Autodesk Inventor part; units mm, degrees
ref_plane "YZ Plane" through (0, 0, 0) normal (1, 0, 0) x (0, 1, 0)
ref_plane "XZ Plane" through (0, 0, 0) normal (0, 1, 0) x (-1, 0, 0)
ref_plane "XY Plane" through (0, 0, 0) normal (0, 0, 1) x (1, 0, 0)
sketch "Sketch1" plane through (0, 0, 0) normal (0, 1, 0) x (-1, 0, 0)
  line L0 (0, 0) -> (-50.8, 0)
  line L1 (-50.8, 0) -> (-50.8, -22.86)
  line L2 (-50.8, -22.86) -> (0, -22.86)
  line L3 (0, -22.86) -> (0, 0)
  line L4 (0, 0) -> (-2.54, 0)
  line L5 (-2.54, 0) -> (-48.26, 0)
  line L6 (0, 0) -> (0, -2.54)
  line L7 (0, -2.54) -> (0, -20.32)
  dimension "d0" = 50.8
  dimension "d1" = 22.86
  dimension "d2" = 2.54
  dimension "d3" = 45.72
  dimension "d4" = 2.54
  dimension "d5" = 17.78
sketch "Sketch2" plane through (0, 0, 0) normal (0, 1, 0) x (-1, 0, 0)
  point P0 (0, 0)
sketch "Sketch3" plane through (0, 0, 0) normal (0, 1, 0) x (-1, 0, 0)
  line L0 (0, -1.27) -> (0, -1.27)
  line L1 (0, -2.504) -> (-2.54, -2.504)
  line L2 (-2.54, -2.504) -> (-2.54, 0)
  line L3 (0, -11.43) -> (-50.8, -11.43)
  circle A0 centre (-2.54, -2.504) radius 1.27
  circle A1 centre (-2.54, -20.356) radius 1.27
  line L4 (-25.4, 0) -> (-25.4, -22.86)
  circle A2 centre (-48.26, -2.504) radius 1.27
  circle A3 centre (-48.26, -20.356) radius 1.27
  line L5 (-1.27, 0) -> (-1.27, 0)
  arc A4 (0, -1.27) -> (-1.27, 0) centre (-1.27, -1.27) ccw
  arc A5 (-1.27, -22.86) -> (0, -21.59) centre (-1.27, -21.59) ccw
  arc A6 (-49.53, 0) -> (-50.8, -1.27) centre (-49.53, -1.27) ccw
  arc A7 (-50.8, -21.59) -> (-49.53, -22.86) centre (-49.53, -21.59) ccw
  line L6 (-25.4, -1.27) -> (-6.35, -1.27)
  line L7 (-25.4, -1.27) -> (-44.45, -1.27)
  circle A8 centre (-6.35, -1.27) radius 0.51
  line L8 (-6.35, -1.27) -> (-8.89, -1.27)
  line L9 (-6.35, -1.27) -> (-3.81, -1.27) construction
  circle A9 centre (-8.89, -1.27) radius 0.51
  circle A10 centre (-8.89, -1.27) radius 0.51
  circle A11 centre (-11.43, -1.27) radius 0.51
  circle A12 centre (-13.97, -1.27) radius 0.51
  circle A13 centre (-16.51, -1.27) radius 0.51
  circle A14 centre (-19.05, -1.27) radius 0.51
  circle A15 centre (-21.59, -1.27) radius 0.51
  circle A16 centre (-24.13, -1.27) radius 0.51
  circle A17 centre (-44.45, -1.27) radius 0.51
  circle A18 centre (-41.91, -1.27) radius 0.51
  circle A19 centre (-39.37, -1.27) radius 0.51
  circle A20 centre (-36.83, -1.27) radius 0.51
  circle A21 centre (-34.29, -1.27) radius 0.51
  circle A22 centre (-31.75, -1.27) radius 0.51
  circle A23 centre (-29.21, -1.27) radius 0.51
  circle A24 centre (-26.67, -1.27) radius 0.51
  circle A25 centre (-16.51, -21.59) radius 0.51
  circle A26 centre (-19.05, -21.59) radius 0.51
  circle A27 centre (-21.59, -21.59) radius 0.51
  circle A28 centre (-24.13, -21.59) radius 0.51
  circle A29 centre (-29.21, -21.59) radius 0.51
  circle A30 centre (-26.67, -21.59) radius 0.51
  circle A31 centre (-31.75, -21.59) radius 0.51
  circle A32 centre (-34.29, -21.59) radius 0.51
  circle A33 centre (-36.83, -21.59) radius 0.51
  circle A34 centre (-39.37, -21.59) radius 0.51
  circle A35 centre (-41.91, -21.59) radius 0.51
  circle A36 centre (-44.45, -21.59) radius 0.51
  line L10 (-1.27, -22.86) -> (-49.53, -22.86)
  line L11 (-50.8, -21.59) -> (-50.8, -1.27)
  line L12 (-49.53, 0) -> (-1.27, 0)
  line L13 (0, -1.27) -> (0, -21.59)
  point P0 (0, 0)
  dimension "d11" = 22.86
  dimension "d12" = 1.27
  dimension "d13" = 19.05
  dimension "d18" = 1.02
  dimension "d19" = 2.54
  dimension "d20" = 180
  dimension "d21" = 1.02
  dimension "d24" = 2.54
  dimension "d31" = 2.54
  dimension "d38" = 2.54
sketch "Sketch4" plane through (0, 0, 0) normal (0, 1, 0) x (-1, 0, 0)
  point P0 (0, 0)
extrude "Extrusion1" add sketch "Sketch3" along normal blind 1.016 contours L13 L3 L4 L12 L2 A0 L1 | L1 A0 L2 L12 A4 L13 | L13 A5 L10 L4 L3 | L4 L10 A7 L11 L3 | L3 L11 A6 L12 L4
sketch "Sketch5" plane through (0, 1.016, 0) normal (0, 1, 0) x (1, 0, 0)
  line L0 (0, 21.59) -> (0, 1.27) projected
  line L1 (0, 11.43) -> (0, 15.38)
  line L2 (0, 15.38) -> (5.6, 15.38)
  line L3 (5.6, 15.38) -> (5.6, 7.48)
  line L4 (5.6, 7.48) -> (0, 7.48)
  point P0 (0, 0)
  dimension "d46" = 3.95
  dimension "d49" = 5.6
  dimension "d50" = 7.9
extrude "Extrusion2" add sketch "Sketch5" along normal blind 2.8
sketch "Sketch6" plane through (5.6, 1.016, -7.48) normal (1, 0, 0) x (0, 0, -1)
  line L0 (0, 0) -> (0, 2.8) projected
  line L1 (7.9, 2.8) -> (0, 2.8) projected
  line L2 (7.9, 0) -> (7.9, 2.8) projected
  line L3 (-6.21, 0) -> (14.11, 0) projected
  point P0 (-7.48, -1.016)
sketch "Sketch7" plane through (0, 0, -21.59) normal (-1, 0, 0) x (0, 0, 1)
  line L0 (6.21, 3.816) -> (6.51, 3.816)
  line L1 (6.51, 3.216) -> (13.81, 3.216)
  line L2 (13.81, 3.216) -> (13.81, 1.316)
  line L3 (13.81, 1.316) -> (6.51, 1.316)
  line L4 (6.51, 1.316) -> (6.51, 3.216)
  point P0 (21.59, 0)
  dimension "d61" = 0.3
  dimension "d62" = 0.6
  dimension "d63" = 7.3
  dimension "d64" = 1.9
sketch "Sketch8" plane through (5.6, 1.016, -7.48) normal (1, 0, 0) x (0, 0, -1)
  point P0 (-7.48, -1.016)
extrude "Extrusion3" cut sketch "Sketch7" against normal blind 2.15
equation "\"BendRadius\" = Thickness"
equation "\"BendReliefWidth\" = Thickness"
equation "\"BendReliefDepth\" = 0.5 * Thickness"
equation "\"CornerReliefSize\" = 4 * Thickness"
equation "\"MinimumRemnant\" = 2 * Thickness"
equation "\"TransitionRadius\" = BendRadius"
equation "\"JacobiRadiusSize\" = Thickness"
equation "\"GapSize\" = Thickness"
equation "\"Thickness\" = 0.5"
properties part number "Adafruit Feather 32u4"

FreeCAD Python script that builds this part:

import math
import FreeCAD as App
import Part
import Sketcher

V = App.Vector
Q = App.Units.Quantity

doc = App.newDocument("Part")
params = doc.addObject("Spreadsheet::Sheet", "Params")
for row, (alias, value) in enumerate([
    ("sketch1_diameter", "0.1 in"),
    ("sketch1_width", "1.9 in"),
    ("pad1_length", "0.04 in"),
    ("pad2_length", "2.8 mm"),
    ("pocket1_length", "2.15 mm"),
], start=1):
    params.set(f"A{row}", alias)
    params.set(f"B{row}", "=" + value)
    params.setAlias(f"B{row}", alias)

body = doc.addObject("PartDesign::Body", "Body")

sketch1 = body.newObject("Sketcher::SketchObject", "Sketch")
sketch1.AttachmentSupport = (doc.getObject("XZ_Plane"), [""])
sketch1.MapMode = "FlatFace"
sketch1.addGeometry([
    Part.ArcOfCircle(Part.Circle(V(1.27, -1.27, 0), V(0, 0, 1), 1.27), math.radians(90), math.radians(180)),
    Part.LineSegment(V(1.27, 0, 0), V(49.53, 0, 0)),
    Part.ArcOfCircle(Part.Circle(V(49.53, -1.27, 0), V(0, 0, 1), 1.27), math.radians(0), math.radians(90)),
    Part.LineSegment(V(50.8, -1.27, 0), V(50.8, -21.59, 0)),
    Part.ArcOfCircle(Part.Circle(V(49.53, -21.59, 0), V(0, 0, 1), 1.27), math.radians(-90), math.radians(0)),
    Part.LineSegment(V(49.53, -22.86, 0), V(1.27, -22.86, 0)),
    Part.ArcOfCircle(Part.Circle(V(1.27, -21.59, 0), V(0, 0, 1), 1.27), math.radians(180), math.radians(270)),
    Part.LineSegment(V(0, -21.59, 0), V(0, -1.27, 0)),
    Part.Circle(V(2.54, -2.504, 0), V(0, 0, 1), 1.27),
    Part.ArcOfCircle(Part.Circle(V(24.13, -1.27, 0), V(0, 0, 1), 0.51), math.radians(180), math.radians(360)),
    Part.ArcOfCircle(Part.Circle(V(24.13, -1.27, 0), V(0, 0, 1), 0.51), math.radians(0), math.radians(180)),
    Part.ArcOfCircle(Part.Circle(V(21.59, -1.27, 0), V(0, 0, 1), 0.51), math.radians(180), math.radians(360)),
    Part.ArcOfCircle(Part.Circle(V(21.59, -1.27, 0), V(0, 0, 1), 0.51), math.radians(0), math.radians(180)),
    Part.ArcOfCircle(Part.Circle(V(19.05, -1.27, 0), V(0, 0, 1), 0.51), math.radians(180), math.radians(360)),
    Part.ArcOfCircle(Part.Circle(V(19.05, -1.27, 0), V(0, 0, 1), 0.51), math.radians(0), math.radians(180)),
    Part.ArcOfCircle(Part.Circle(V(16.51, -1.27, 0), V(0, 0, 1), 0.51), math.radians(180), math.radians(360)),
    Part.ArcOfCircle(Part.Circle(V(16.51, -1.27, 0), V(0, 0, 1), 0.51), math.radians(0), math.radians(180)),
    Part.ArcOfCircle(Part.Circle(V(13.97, -1.27, 0), V(0, 0, 1), 0.51), math.radians(180), math.radians(360)),
    Part.ArcOfCircle(Part.Circle(V(13.97, -1.27, 0), V(0, 0, 1), 0.51), math.radians(0), math.radians(180)),
    Part.ArcOfCircle(Part.Circle(V(11.43, -1.27, 0), V(0, 0, 1), 0.51), math.radians(180), math.radians(360)),
    Part.ArcOfCircle(Part.Circle(V(11.43, -1.27, 0), V(0, 0, 1), 0.51), math.radians(0), math.radians(180)),
    Part.ArcOfCircle(Part.Circle(V(8.89, -1.27, 0), V(0, 0, 1), 0.51), math.radians(180), math.radians(360)),
    Part.ArcOfCircle(Part.Circle(V(8.89, -1.27, 0), V(0, 0, 1), 0.51), math.radians(0), math.radians(180)),
    Part.Circle(V(6.35, -1.27, 0), V(0, 0, 1), 0.51),
    Part.Circle(V(2.54, -20.356, 0), V(0, 0, 1), 1.27),
    Part.Circle(V(24.13, -21.59, 0), V(0, 0, 1), 0.51),
    Part.Circle(V(21.59, -21.59, 0), V(0, 0, 1), 0.51),
    Part.Circle(V(19.05, -21.59, 0), V(0, 0, 1), 0.51),
    Part.Circle(V(16.51, -21.59, 0), V(0, 0, 1), 0.51),
    Part.Circle(V(48.26, -2.504, 0), V(0, 0, 1), 1.27),
    Part.Circle(V(44.45, -1.27, 0), V(0, 0, 1), 0.51),
    Part.ArcOfCircle(Part.Circle(V(41.91, -1.27, 0), V(0, 0, 1), 0.51), math.radians(0), math.radians(180)),
    Part.ArcOfCircle(Part.Circle(V(41.91, -1.27, 0), V(0, 0, 1), 0.51), math.radians(180), math.radians(360)),
    Part.ArcOfCircle(Part.Circle(V(39.37, -1.27, 0), V(0, 0, 1), 0.51), math.radians(0), math.radians(180)),
    Part.ArcOfCircle(Part.Circle(V(39.37, -1.27, 0), V(0, 0, 1), 0.51), math.radians(180), math.radians(360)),
    Part.ArcOfCircle(Part.Circle(V(36.83, -1.27, 0), V(0, 0, 1), 0.51), math.radians(0), math.radians(180)),
    Part.ArcOfCircle(Part.Circle(V(36.83, -1.27, 0), V(0, 0, 1), 0.51), math.radians(180), math.radians(360)),
    Part.ArcOfCircle(Part.Circle(V(34.29, -1.27, 0), V(0, 0, 1), 0.51), math.radians(0), math.radians(180)),
    Part.ArcOfCircle(Part.Circle(V(34.29, -1.27, 0), V(0, 0, 1), 0.51), math.radians(180), math.radians(360)),
    Part.ArcOfCircle(Part.Circle(V(31.75, -1.27, 0), V(0, 0, 1), 0.51), math.radians(0), math.radians(180)),
    Part.ArcOfCircle(Part.Circle(V(31.75, -1.27, 0), V(0, 0, 1), 0.51), math.radians(180), math.radians(360)),
    Part.ArcOfCircle(Part.Circle(V(29.21, -1.27, 0), V(0, 0, 1), 0.51), math.radians(0), math.radians(180)),
    Part.ArcOfCircle(Part.Circle(V(29.21, -1.27, 0), V(0, 0, 1), 0.51), math.radians(180), math.radians(360)),
    Part.ArcOfCircle(Part.Circle(V(26.67, -1.27, 0), V(0, 0, 1), 0.51), math.radians(0), math.radians(180)),
    Part.ArcOfCircle(Part.Circle(V(26.67, -1.27, 0), V(0, 0, 1), 0.51), math.radians(180), math.radians(360)),
    Part.Circle(V(26.67, -21.59, 0), V(0, 0, 1), 0.51),
    Part.Circle(V(29.21, -21.59, 0), V(0, 0, 1), 0.51),
    Part.Circle(V(44.45, -21.59, 0), V(0, 0, 1), 0.51),
    Part.Circle(V(48.26, -20.356, 0), V(0, 0, 1), 1.27),
    Part.Circle(V(41.91, -21.59, 0), V(0, 0, 1), 0.51),
    Part.Circle(V(39.37, -21.59, 0), V(0, 0, 1), 0.51),
    Part.Circle(V(36.83, -21.59, 0), V(0, 0, 1), 0.51),
    Part.Circle(V(34.29, -21.59, 0), V(0, 0, 1), 0.51),
    Part.Circle(V(31.75, -21.59, 0), V(0, 0, 1), 0.51),
], False)
sketch1.addConstraint([
    Sketcher.Constraint("Tangent", 0, 1, 1, 1),
    Sketcher.Constraint("Tangent", 1, 2, 2, 2),
    Sketcher.Constraint("Tangent", 2, 1, 3, 1),
    Sketcher.Constraint("Tangent", 3, 2, 4, 2),
    Sketcher.Constraint("Tangent", 4, 1, 5, 1),
    Sketcher.Constraint("Tangent", 5, 2, 6, 2),
    Sketcher.Constraint("Tangent", 6, 1, 7, 1),
    Sketcher.Constraint("Tangent", 7, 2, 0, 2),
    Sketcher.Constraint("Tangent", 9, 1, 10, 2),
    Sketcher.Constraint("Coincident", 10, 1, 9, 2),
    Sketcher.Constraint("Tangent", 11, 1, 12, 2),
    Sketcher.Constraint("Coincident", 12, 1, 11, 2),
    Sketcher.Constraint("Tangent", 13, 1, 14, 2),
    Sketcher.Constraint("Coincident", 14, 1, 13, 2),
    Sketcher.Constraint("Tangent", 15, 1, 16, 2),
    Sketcher.Constraint("Coincident", 16, 1, 15, 2),
    Sketcher.Constraint("Tangent", 17, 1, 18, 2),
    Sketcher.Constraint("Coincident", 18, 1, 17, 2),
    Sketcher.Constraint("Tangent", 19, 1, 20, 2),
    Sketcher.Constraint("Coincident", 20, 1, 19, 2),
    Sketcher.Constraint("Tangent", 21, 1, 22, 2),
    Sketcher.Constraint("Coincident", 22, 1, 21, 2),
    Sketcher.Constraint("Tangent", 31, 1, 32, 2),
    Sketcher.Constraint("Coincident", 32, 1, 31, 2),
    Sketcher.Constraint("Tangent", 33, 1, 34, 2),
    Sketcher.Constraint("Coincident", 34, 1, 33, 2),
    Sketcher.Constraint("Tangent", 35, 1, 36, 2),
    Sketcher.Constraint("Coincident", 36, 1, 35, 2),
    Sketcher.Constraint("Tangent", 37, 1, 38, 2),
    Sketcher.Constraint("Coincident", 38, 1, 37, 2),
    Sketcher.Constraint("Tangent", 39, 1, 40, 2),
    Sketcher.Constraint("Coincident", 40, 1, 39, 2),
    Sketcher.Constraint("Tangent", 41, 1, 42, 2),
    Sketcher.Constraint("Coincident", 42, 1, 41, 2),
    Sketcher.Constraint("Tangent", 43, 1, 44, 2),
    Sketcher.Constraint("Coincident", 44, 1, 43, 2),
    Sketcher.Constraint("Horizontal", 1),
    Sketcher.Constraint("Vertical", 3),
    Sketcher.Constraint("Horizontal", 5),
    Sketcher.Constraint("Vertical", 7),
    Sketcher.Constraint("Equal", 0, 2),
    Sketcher.Constraint("Equal", 2, 4),
    Sketcher.Constraint("Equal", 4, 6),
    Sketcher.Constraint("Equal", 6, 8),
    Sketcher.Constraint("Equal", 10, 11),
    Sketcher.Constraint("Equal", 12, 13),
    Sketcher.Constraint("Equal", 14, 15),
    Sketcher.Constraint("Equal", 16, 17),
    Sketcher.Constraint("Equal", 18, 19),
    Sketcher.Constraint("Equal", 20, 21),
    Sketcher.Constraint("Equal", 22, 23),
    Sketcher.Constraint("Equal", 8, 24),
    Sketcher.Constraint("Equal", 23, 25),
    Sketcher.Constraint("Equal", 25, 26),
    Sketcher.Constraint("Equal", 26, 27),
    Sketcher.Constraint("Equal", 27, 28),
    Sketcher.Constraint("Equal", 24, 29),
    Sketcher.Constraint("Equal", 28, 30),
    Sketcher.Constraint("Equal", 30, 31),
    Sketcher.Constraint("Equal", 32, 33),
    Sketcher.Constraint("Equal", 34, 35),
    Sketcher.Constraint("Equal", 36, 37),
    Sketcher.Constraint("Equal", 38, 39),
    Sketcher.Constraint("Equal", 40, 41),
    Sketcher.Constraint("Equal", 42, 43),
    Sketcher.Constraint("Equal", 44, 45),
    Sketcher.Constraint("Equal", 45, 46),
    Sketcher.Constraint("Equal", 46, 47),
    Sketcher.Constraint("Equal", 29, 48),
    Sketcher.Constraint("Equal", 47, 49),
    Sketcher.Constraint("Equal", 49, 50),
    Sketcher.Constraint("Equal", 50, 51),
    Sketcher.Constraint("Equal", 51, 52),
    Sketcher.Constraint("Equal", 52, 53),
    Sketcher.Constraint("PointOnObject", 0, 1, -1),
    Sketcher.Constraint("PointOnObject", 6, 1, -2),
    Sketcher.Constraint("Horizontal", 2, 3, 9, 3),
    Sketcher.Constraint("Horizontal", 10, 3, 11, 3),
    Sketcher.Constraint("Horizontal", 12, 3, 13, 3),
    Sketcher.Constraint("Horizontal", 14, 3, 15, 3),
    Sketcher.Constraint("Horizontal", 16, 3, 17, 3),
    Sketcher.Constraint("Horizontal", 18, 3, 19, 3),
    Sketcher.Constraint("Horizontal", 20, 3, 21, 3),
    Sketcher.Constraint("Horizontal", 22, 3, 23, 3),
    Sketcher.Constraint("Horizontal", 6, 3, 25, 3),
    Sketcher.Constraint("Horizontal", 25, 3, 26, 3),
    Sketcher.Constraint("Horizontal", 26, 3, 27, 3),
    Sketcher.Constraint("Horizontal", 27, 3, 28, 3),
    Sketcher.Constraint("Horizontal", 8, 3, 29, 3),
    Sketcher.Constraint("Horizontal", 23, 3, 30, 3),
    Sketcher.Constraint("Horizontal", 30, 3, 31, 3),
    Sketcher.Constraint("Horizontal", 32, 3, 33, 3),
    Sketcher.Constraint("Horizontal", 34, 3, 35, 3),
    Sketcher.Constraint("Horizontal", 36, 3, 37, 3),
    Sketcher.Constraint("Horizontal", 38, 3, 39, 3),
    Sketcher.Constraint("Horizontal", 40, 3, 41, 3),
    Sketcher.Constraint("Horizontal", 42, 3, 43, 3),
    Sketcher.Constraint("Horizontal", 28, 3, 45, 3),
    Sketcher.Constraint("Horizontal", 45, 3, 46, 3),
    Sketcher.Constraint("Horizontal", 46, 3, 47, 3),
    Sketcher.Constraint("Horizontal", 24, 3, 48, 3),
    Sketcher.Constraint("Horizontal", 47, 3, 49, 3),
    Sketcher.Constraint("Horizontal", 49, 3, 50, 3),
    Sketcher.Constraint("Horizontal", 50, 3, 51, 3),
    Sketcher.Constraint("Horizontal", 51, 3, 52, 3),
    Sketcher.Constraint("Horizontal", 52, 3, 53, 3),
    Sketcher.Constraint("Horizontal", 7, 2, 9, 1),
    Sketcher.Constraint("Horizontal", 9, 1, 10, 1),
    Sketcher.Constraint("Horizontal", 10, 1, 11, 1),
    Sketcher.Constraint("Horizontal", 11, 1, 12, 1),
    Sketcher.Constraint("Horizontal", 12, 1, 13, 1),
    Sketcher.Constraint("Horizontal", 13, 1, 14, 1),
    Sketcher.Constraint("Horizontal", 14, 1, 15, 1),
    Sketcher.Constraint("Horizontal", 15, 1, 16, 1),
    Sketcher.Constraint("Horizontal", 16, 1, 17, 1),
    Sketcher.Constraint("Horizontal", 17, 1, 18, 1),
    Sketcher.Constraint("Horizontal", 18, 1, 19, 1),
    Sketcher.Constraint("Horizontal", 19, 1, 20, 1),
    Sketcher.Constraint("Horizontal", 20, 1, 21, 1),
    Sketcher.Constraint("Horizontal", 21, 1, 22, 1),
    Sketcher.Constraint("Horizontal", 22, 1, 31, 1),
    Sketcher.Constraint("Horizontal", 31, 1, 32, 1),
    Sketcher.Constraint("Horizontal", 32, 1, 33, 1),
    Sketcher.Constraint("Horizontal", 33, 1, 34, 1),
    Sketcher.Constraint("Horizontal", 34, 1, 35, 1),
    Sketcher.Constraint("Horizontal", 35, 1, 36, 1),
    Sketcher.Constraint("Horizontal", 36, 1, 37, 1),
    Sketcher.Constraint("Horizontal", 37, 1, 38, 1),
    Sketcher.Constraint("Horizontal", 38, 1, 39, 1),
    Sketcher.Constraint("Horizontal", 39, 1, 40, 1),
    Sketcher.Constraint("Horizontal", 40, 1, 41, 1),
    Sketcher.Constraint("Horizontal", 41, 1, 42, 1),
    Sketcher.Constraint("Horizontal", 42, 1, 43, 1),
    Sketcher.Constraint("Horizontal", 43, 1, 44, 1),
    Sketcher.Constraint("Vertical", 8, 3, 24, 3),
    Sketcher.Constraint("Vertical", 10, 3, 25, 3),
    Sketcher.Constraint("Vertical", 12, 3, 26, 3),
    Sketcher.Constraint("Vertical", 14, 3, 27, 3),
    Sketcher.Constraint("Vertical", 16, 3, 28, 3),
    Sketcher.Constraint("Vertical", 44, 3, 45, 3),
    Sketcher.Constraint("Vertical", 42, 3, 46, 3),
    Sketcher.Constraint("Vertical", 30, 3, 47, 3),
    Sketcher.Constraint("Vertical", 29, 3, 48, 3),
    Sketcher.Constraint("Vertical", 32, 3, 49, 3),
    Sketcher.Constraint("Vertical", 34, 3, 50, 3),
    Sketcher.Constraint("Vertical", 36, 3, 51, 3),
    Sketcher.Constraint("Vertical", 38, 3, 52, 3),
    Sketcher.Constraint("Vertical", 40, 3, 53, 3),
    Sketcher.Constraint("Diameter", 8, Q("0.1 in")),
    Sketcher.Constraint("DistanceX", -1, 1, 8, 3, Q("0.1 in")),
    Sketcher.Constraint("DistanceY", 4, 1, -1, 1, Q("0.9 in")),
    Sketcher.Constraint("Diameter", 23, Q("1.02 mm")),
    Sketcher.Constraint("DistanceX", -1, 1, 13, 3, Q("0.75 in")),
    Sketcher.Constraint("DistanceX", 1, 1, 1, 2, Q("1.9 in")),
    Sketcher.Constraint("DistanceX", -1, 1, 29, 3, Q("1.9 in")),
    Sketcher.Constraint("DistanceX", -1, 1, 9, 3, Q("0.95 in")),
    Sketcher.Constraint("DistanceX", -1, 1, 11, 3, Q("0.85 in")),
    Sketcher.Constraint("DistanceX", -1, 1, 15, 3, Q("0.65 in")),
    Sketcher.Constraint("DistanceX", -1, 1, 17, 3, Q("0.55 in")),
    Sketcher.Constraint("DistanceX", -1, 1, 19, 3, Q("0.45 in")),
    Sketcher.Constraint("DistanceX", -1, 1, 21, 3, Q("0.35 in")),
    Sketcher.Constraint("DistanceX", -1, 1, 23, 3, Q("0.25 in")),
    Sketcher.Constraint("DistanceX", -1, 1, 30, 3, Q("1.75 in")),
    Sketcher.Constraint("DistanceX", -1, 1, 31, 3, Q("1.65 in")),
    Sketcher.Constraint("DistanceX", -1, 1, 33, 3, Q("1.55 in")),
    Sketcher.Constraint("DistanceX", -1, 1, 35, 3, Q("1.45 in")),
    Sketcher.Constraint("DistanceX", -1, 1, 37, 3, Q("1.35 in")),
    Sketcher.Constraint("DistanceX", -1, 1, 39, 3, Q("1.25 in")),
    Sketcher.Constraint("DistanceX", -1, 1, 41, 3, Q("1.15 in")),
    Sketcher.Constraint("DistanceX", -1, 1, 43, 3, Q("1.05 in")),
    Sketcher.Constraint("DistanceY", 8, 3, -1, 1, Q("2.504 mm")),
    Sketcher.Constraint("DistanceY", 24, 3, -1, 1, Q("20.356 mm")),
])
sketch1.setExpression("Constraints[148]", "Params.sketch1_diameter")
sketch1.setExpression("Constraints[153]", "Params.sketch1_width")
pad1 = body.newObject("PartDesign::Pad", "Pad")
pad1.Profile = sketch1
pad1.setExpression("Length", "Params.pad1_length")
pad1.Reversed = True

sketch2 = body.newObject("Sketcher::SketchObject", "Sketch001")
sketch2.AttachmentSupport = (doc.getObject("XZ_Plane"), [""])
sketch2.MapMode = "FlatFace"
sketch2.AttachmentOffset = App.Placement(V(0, 0, -0.04 * 25.4), App.Rotation())
sketch2.addGeometry([
    Part.LineSegment(V(5.6, -15.38, 0), V(0, -15.38, 0)),
    Part.LineSegment(V(0, -15.38, 0), V(0, -7.48, 0)),
    Part.LineSegment(V(0, -7.48, 0), V(5.6, -7.48, 0)),
    Part.LineSegment(V(5.6, -7.48, 0), V(5.6, -15.38, 0)),
], False)
sketch2.addConstraint([
    Sketcher.Constraint("Coincident", 0, 2, 1, 1),
    Sketcher.Constraint("Coincident", 1, 2, 2, 1),
    Sketcher.Constraint("Coincident", 2, 2, 3, 1),
    Sketcher.Constraint("Coincident", 3, 2, 0, 1),
    Sketcher.Constraint("Horizontal", 0),
    Sketcher.Constraint("Vertical", 1),
    Sketcher.Constraint("Horizontal", 2),
    Sketcher.Constraint("Vertical", 3),
    Sketcher.Constraint("PointOnObject", 0, 2, -2),
    Sketcher.Constraint("DistanceX", 0, 2, 0, 1, Q("5.6 mm")),
    Sketcher.Constraint("DistanceY", 1, 1, 1, 2, Q("7.9 mm")),
    Sketcher.Constraint("DistanceY", 0, 2, -1, 1, Q("0.6055 in")),
])
pad2 = body.newObject("PartDesign::Pad", "Pad001")
pad2.Profile = sketch2
pad2.setExpression("Length", "Params.pad2_length")
pad2.Reversed = True

sketch3 = body.newObject("Sketcher::SketchObject", "Sketch002")
sketch3.AttachmentSupport = (doc.getObject("YZ_Plane"), [""])
sketch3.MapMode = "FlatFace"
sketch3.addGeometry([
    Part.LineSegment(V(3.216, -7.78, 0), V(3.216, -15.08, 0)),
    Part.LineSegment(V(3.216, -15.08, 0), V(1.316, -15.08, 0)),
    Part.LineSegment(V(1.316, -15.08, 0), V(1.316, -7.78, 0)),
    Part.LineSegment(V(1.316, -7.78, 0), V(3.216, -7.78, 0)),
], False)
sketch3.addConstraint([
    Sketcher.Constraint("Coincident", 0, 2, 1, 1),
    Sketcher.Constraint("Coincident", 1, 2, 2, 1),
    Sketcher.Constraint("Coincident", 2, 2, 3, 1),
    Sketcher.Constraint("Coincident", 3, 2, 0, 1),
    Sketcher.Constraint("Vertical", 0),
    Sketcher.Constraint("Horizontal", 1),
    Sketcher.Constraint("Vertical", 2),
    Sketcher.Constraint("Horizontal", 3),
    Sketcher.Constraint("DistanceX", 1, 2, 1, 1, Q("0.0748 in")),
    Sketcher.Constraint("DistanceY", 0, 2, 0, 1, Q("0.2874 in")),
    Sketcher.Constraint("DistanceY", 0, 2, -1, 1, Q("0.5937 in")),
    Sketcher.Constraint("DistanceX", -1, 1, 1, 2, Q("0.0518 in")),
])
pocket1 = body.newObject("PartDesign::Pocket", "Pocket")
pocket1.Profile = sketch3
pocket1.setExpression("Length", "Params.pocket1_length")
pocket1.Reversed = True

doc.recompute()
